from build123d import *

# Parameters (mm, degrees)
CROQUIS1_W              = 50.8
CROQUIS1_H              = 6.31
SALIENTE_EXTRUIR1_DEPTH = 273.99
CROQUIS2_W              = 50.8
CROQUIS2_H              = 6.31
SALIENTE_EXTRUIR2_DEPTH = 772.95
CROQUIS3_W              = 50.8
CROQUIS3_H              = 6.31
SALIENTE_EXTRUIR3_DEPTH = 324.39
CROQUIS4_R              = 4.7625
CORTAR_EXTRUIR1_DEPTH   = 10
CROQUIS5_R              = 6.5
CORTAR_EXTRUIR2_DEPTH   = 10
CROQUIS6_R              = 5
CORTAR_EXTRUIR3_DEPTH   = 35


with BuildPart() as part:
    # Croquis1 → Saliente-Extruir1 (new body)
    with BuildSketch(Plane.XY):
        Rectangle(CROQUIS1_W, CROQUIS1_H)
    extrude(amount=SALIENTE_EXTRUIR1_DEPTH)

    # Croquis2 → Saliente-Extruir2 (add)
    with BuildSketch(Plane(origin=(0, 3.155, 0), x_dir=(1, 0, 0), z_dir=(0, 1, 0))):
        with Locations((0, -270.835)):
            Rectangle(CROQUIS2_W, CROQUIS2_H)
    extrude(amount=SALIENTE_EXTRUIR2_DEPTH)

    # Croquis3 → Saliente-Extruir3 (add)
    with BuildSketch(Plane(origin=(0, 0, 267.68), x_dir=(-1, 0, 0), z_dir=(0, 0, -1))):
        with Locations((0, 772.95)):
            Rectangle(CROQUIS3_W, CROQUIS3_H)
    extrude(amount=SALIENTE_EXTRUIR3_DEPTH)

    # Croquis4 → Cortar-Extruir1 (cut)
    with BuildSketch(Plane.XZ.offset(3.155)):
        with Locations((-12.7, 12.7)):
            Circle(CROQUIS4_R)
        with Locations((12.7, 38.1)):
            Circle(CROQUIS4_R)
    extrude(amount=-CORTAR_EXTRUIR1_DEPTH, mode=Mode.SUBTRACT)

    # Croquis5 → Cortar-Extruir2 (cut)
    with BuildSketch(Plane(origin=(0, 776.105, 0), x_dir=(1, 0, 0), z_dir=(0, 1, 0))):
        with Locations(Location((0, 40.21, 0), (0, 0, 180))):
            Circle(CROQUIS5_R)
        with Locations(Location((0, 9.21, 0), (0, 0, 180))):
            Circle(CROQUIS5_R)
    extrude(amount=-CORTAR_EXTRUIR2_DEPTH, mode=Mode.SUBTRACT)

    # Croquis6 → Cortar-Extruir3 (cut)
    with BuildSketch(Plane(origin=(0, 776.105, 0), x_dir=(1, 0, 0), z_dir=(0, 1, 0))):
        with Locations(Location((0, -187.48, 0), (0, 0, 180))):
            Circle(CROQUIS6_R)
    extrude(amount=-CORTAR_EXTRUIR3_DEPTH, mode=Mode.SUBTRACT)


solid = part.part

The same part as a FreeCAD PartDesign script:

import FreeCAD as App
import Part
import Sketcher
from FreeCAD import Vector
Q = App.Units.Quantity


def add_polygon(sketch, points):
    """Adds a closed chain of lines whose ends are joined by coincident constraints."""
    first, n = sketch.GeometryCount, len(points)
    for a, b in zip(points, points[1:] + points[:1]):
        sketch.addGeometry(Part.LineSegment(App.Vector(*a, 0), App.Vector(*b, 0)), False)
    for i in range(n):
        sketch.addConstraint(Sketcher.Constraint("Coincident", first + i, 2, first + (i + 1) % n, 1))

doc = App.newDocument("Part")
body = doc.addObject("PartDesign::Body", "Body")

sketch1 = body.newObject("Sketcher::SketchObject", "Sketch")
sketch1.AttachmentSupport = (doc.getObject("XY_Plane"), [""])
sketch1.MapMode = "FlatFace"
add_polygon(sketch1, [(-25, 3), (-25, -3), (25, -3), (25, 3)])
sketch1.addConstraint([
    Sketcher.Constraint("Vertical", 0),
    Sketcher.Constraint("Horizontal", 1),
    Sketcher.Constraint("Vertical", 2),
    Sketcher.Constraint("Horizontal", 3),
    Sketcher.Constraint("Symmetric", 0, 2, 2, 2, -1, 1),
    Sketcher.Constraint("DistanceX", 1, 1, 1, 2, Q("50.8 mm")),
    Sketcher.Constraint("DistanceY", 0, 2, 0, 1, Q("6.31 mm")),
])
pad1 = body.newObject("PartDesign::Pad", "Pad")
pad1.Profile = sketch1
pad1.Length = 273.99

sketch2 = body.newObject("Sketcher::SketchObject", "Sketch001")
sketch2.AttachmentSupport = (doc.getObject("XZ_Plane"), [""])
sketch2.MapMode = "FlatFace"
sketch2.AttachmentOffset = App.Placement(Vector(0, 0, -3.155), App.Rotation())
add_polygon(sketch2, [(-25, 268), (-25, 274), (25, 274), (25, 268)])
sketch2.addConstraint([
    Sketcher.Constraint("Vertical", 0),
    Sketcher.Constraint("Horizontal", 1),
    Sketcher.Constraint("Vertical", 2),
    Sketcher.Constraint("Horizontal", 3),
    Sketcher.Constraint("DistanceX", 1, 1, 1, 2, Q("50.8 mm")),
    Sketcher.Constraint("DistanceY", 0, 1, 0, 2, Q("6.31 mm")),
    Sketcher.Constraint("DistanceX", 0, 2, -1, 1, Q("25.4 mm")),
    Sketcher.Constraint("DistanceY", -1, 1, 0, 2, Q("273.99 mm")),
])
pad2 = body.newObject("PartDesign::Pad", "Pad001")
pad2.Profile = sketch2
pad2.Length = 772.95
pad2.Reversed = True

sketch3 = body.newObject("Sketcher::SketchObject", "Sketch002")
sketch3.AttachmentSupport = (doc.getObject("XY_Plane"), [""])
sketch3.MapMode = "FlatFace"
sketch3.AttachmentOffset = App.Placement(Vector(0, 0, 267.68), App.Rotation())
add_polygon(sketch3, [(25, 776), (25, 770), (-25, 770), (-25, 776)])
sketch3.addConstraint([
    Sketcher.Constraint("Vertical", 0),
    Sketcher.Constraint("Horizontal", 1),
    Sketcher.Constraint("Vertical", 2),
    Sketcher.Constraint("Horizontal", 3),
    Sketcher.Constraint("DistanceX", 1, 2, 1, 1, Q("50.8 mm")),
    Sketcher.Constraint("DistanceY", 0, 2, 0, 1, Q("6.31 mm")),
    Sketcher.Constraint("DistanceX", -1, 1, 0, 2, Q("25.4 mm")),
    Sketcher.Constraint("DistanceY", -1, 1, 0, 2, Q("769.795 mm")),
])
pad3 = body.newObject("PartDesign::Pad", "Pad002")
pad3.Profile = sketch3
pad3.Length = 324.39
pad3.Reversed = True

sketch4 = body.newObject("Sketcher::SketchObject", "Sketch003")
sketch4.AttachmentSupport = (doc.getObject("XZ_Plane"), [""])
sketch4.MapMode = "FlatFace"
sketch4.AttachmentOffset = App.Placement(Vector(0, 0, 3.155), App.Rotation())
sketch4.addGeometry([
    Part.Circle(Vector(-12.7, 12.7, 0), Vector(0, 0, 1), 4.8),
    Part.Circle(Vector(12.7, 38.1, 0), Vector(0, 0, 1), 4.8),
], False)
sketch4.addConstraint([
    Sketcher.Constraint("Equal", 0, 1),
    Sketcher.Constraint("Diameter", 0, Q("9.525 mm")),
    Sketcher.Constraint("DistanceX", 0, 3, -1, 1, Q("12.7 mm")),
    Sketcher.Constraint("DistanceY", -1, 1, 0, 3, Q("12.7 mm")),
    Sketcher.Constraint("DistanceX", -1, 1, 1, 3, Q("12.7 mm")),
    Sketcher.Constraint("DistanceY", -1, 1, 1, 3, Q("38.1 mm")),
])
pocket1 = body.newObject("PartDesign::Pocket", "Pocket")
pocket1.Profile = sketch4
pocket1.Length = 10

sketch5 = body.newObject("Sketcher::SketchObject", "Sketch004")
sketch5.AttachmentSupport = (doc.getObject("XZ_Plane"), [""])
sketch5.MapMode = "FlatFace"
sketch5.AttachmentOffset = App.Placement(Vector(0, 0, -776.105), App.Rotation())
sketch5.addGeometry([
    Part.Circle(Vector(0, -40, 0), Vector(0, 0, 1), 6),
    Part.Circle(Vector(0, -9, 0), Vector(0, 0, 1), 6),
], False)
sketch5.addConstraint([
    Sketcher.Constraint("Equal", 0, 1),
    Sketcher.Constraint("PointOnObject", 0, 3, -2),
    Sketcher.Constraint("PointOnObject", 1, 3, -2),
    Sketcher.Constraint("Diameter", 0, Q("13 mm")),
    Sketcher.Constraint("DistanceY", 0, 3, 1, 3, Q("31 mm")),
    Sketcher.Constraint("DistanceY", 0, 3, -1, 1, Q("40.21 mm")),
])
pocket2 = body.newObject("PartDesign::Pocket", "Pocket001")
pocket2.Profile = sketch5
pocket2.Length = 10
pocket2.Reversed = True

sketch6 = body.newObject("Sketcher::SketchObject", "Sketch005")
sketch6.AttachmentSupport = (doc.getObject("XZ_Plane"), [""])
sketch6.MapMode = "FlatFace"
sketch6.AttachmentOffset = App.Placement(Vector(0, 0, -776.105), App.Rotation())
sketch6.addGeometry(Part.Circle(Vector(0, 187, 0), Vector(0, 0, 1), 5), False)
sketch6.addConstraint([
    Sketcher.Constraint("PointOnObject", 0, 3, -2),
    Sketcher.Constraint("Diameter", 0, Q("10 mm")),
    Sketcher.Constraint("DistanceY", -1, 1, 0, 3, Q("187.48 mm")),
])
pocket3 = body.newObject("PartDesign::Pocket", "Pocket002")
pocket3.Profile = sketch6
pocket3.Length = 35
pocket3.Reversed = True

doc.recompute()
